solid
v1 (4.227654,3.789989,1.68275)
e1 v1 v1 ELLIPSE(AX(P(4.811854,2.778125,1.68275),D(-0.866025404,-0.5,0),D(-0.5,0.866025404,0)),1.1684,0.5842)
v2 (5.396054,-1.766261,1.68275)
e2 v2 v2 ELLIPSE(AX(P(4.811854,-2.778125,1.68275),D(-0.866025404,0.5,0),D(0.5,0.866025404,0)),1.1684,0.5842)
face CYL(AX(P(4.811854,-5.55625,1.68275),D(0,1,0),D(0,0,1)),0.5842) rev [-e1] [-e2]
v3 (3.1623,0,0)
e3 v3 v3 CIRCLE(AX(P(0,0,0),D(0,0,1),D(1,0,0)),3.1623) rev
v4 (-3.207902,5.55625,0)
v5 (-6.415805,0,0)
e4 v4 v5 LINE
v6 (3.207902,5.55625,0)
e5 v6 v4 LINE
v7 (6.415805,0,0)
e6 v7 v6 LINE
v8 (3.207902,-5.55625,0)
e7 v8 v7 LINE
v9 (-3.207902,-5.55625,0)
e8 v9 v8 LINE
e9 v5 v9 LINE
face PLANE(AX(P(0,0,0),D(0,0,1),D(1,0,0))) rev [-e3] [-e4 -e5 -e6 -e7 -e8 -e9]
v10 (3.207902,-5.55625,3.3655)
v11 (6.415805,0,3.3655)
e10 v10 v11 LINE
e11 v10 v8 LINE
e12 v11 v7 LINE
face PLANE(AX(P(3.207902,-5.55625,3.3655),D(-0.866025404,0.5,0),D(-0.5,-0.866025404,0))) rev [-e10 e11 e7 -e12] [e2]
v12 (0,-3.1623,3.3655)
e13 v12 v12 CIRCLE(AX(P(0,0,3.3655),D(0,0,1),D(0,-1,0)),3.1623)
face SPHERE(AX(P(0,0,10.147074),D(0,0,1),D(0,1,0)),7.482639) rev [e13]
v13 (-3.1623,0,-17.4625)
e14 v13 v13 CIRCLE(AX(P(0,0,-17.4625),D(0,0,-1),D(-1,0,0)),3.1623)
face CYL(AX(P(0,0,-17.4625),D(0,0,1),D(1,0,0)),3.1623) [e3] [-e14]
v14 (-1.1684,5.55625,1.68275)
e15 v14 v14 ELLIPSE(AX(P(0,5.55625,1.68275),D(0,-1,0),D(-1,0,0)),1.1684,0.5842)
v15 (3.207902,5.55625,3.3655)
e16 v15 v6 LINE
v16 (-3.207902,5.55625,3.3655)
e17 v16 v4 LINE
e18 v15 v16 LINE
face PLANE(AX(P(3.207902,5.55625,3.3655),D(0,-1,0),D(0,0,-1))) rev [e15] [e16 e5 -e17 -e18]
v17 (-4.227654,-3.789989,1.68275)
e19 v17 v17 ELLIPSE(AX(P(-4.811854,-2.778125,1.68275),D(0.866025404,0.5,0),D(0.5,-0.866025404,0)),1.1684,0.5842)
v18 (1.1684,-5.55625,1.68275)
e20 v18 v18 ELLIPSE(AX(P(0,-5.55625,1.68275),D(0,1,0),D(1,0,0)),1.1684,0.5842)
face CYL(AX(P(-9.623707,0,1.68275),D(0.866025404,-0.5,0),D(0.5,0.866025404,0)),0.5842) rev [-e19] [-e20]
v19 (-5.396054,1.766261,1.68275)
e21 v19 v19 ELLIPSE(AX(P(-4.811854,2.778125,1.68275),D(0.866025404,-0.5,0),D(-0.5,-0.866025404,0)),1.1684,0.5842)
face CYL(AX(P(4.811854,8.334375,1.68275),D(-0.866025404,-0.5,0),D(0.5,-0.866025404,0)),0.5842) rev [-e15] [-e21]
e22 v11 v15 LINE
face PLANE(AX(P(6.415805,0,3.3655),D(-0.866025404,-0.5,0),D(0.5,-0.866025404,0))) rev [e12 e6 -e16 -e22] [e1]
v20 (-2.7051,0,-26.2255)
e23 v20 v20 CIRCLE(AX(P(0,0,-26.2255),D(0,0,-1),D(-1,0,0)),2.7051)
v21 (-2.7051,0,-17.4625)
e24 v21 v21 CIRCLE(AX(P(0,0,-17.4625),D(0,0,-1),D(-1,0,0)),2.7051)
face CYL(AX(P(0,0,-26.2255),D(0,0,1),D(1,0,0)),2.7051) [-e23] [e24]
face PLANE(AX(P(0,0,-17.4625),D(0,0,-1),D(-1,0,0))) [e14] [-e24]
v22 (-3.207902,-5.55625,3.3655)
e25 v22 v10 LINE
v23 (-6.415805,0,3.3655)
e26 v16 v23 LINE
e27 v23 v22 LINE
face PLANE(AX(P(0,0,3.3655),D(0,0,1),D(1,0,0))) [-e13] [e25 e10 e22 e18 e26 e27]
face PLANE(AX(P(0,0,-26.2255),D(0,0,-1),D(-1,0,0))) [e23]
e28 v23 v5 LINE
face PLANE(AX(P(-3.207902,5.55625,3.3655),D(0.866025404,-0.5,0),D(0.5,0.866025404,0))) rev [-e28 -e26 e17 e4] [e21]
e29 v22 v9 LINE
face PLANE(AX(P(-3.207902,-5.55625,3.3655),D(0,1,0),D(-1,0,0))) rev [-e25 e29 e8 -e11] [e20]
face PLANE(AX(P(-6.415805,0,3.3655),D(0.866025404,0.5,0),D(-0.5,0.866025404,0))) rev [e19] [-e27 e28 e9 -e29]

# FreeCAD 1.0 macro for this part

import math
import FreeCAD as App
import Part
import Sketcher

V = App.Vector
Q = App.Units.Quantity


def add_polygon(sketch, points):
    """Adds a closed chain of lines whose ends are joined by coincident constraints."""
    first, n = sketch.GeometryCount, len(points)
    for a, b in zip(points, points[1:] + points[:1]):
        sketch.addGeometry(Part.LineSegment(App.Vector(*a, 0), App.Vector(*b, 0)), False)
    for i in range(n):
        sketch.addConstraint(Sketcher.Constraint("Coincident", first + i, 2, first + (i + 1) % n, 1))

doc = App.newDocument("Part")
body = doc.addObject("PartDesign::Body", "Body")

# Sketch on XY plane
sketch1 = body.newObject("Sketcher::SketchObject", "Sketch")
sketch1.AttachmentSupport = (doc.getObject("XY_Plane"), [""])
sketch1.MapMode = "FlatFace"
add_polygon(sketch1, [(3, 6), (-3, 6), (-6, 0), (-3, -6), (3, -6), (6, 0)])  # lines 0-5
sketch1.addConstraint(Sketcher.Constraint("Horizontal", 0))
sketch1.addConstraint(Sketcher.Constraint("Horizontal", 3))
sketch1.addConstraint(Sketcher.Constraint("Symmetric", 0, 2, 3, 2, -1, 1))
sketch1.addConstraint(Sketcher.Constraint("Symmetric", 1, 2, 4, 2, -1, 1))
sketch1.addConstraint(Sketcher.Constraint("PointOnObject", 1, 2, -1))
sketch1.addConstraint(Sketcher.Constraint("Parallel", 2, 5))
sketch1.addConstraint(Sketcher.Constraint("Vertical", 0, 2, 2, 2))
sketch1.addConstraint(Sketcher.Constraint("Angle", 1, Q("-120 deg")))
sketch1.addConstraint(Sketcher.Constraint("DistanceY", -1, 1, 0, 2, Q("0.21875 in")))
sketch1.addConstraint(Sketcher.Constraint("DistanceX", 0, 2, 0, 1, 6.415805))
pad1 = body.newObject("PartDesign::Pad", "Pad")
pad1.Profile = sketch1
pad1.Length = Q("0.1325 in")

# Sketch on XY plane
sketch2 = body.newObject("Sketcher::SketchObject", "Sketch001")
sketch2.AttachmentSupport = (doc.getObject("XY_Plane"), [""])
sketch2.MapMode = "FlatFace"
sketch2.addGeometry(Part.Circle(V(0, 0, 0), V(0, 0, 1), 3.2), False)
sketch2.addConstraint(Sketcher.Constraint("Coincident", 0, 3, -1, 1))
sketch2.addConstraint(Sketcher.Constraint("Diameter", 0, Q("0.249 in")))
pad2 = body.newObject("PartDesign::Pad", "Pad001")
pad2.Profile = sketch2
pad2.Length = Q("0.6875 in")
pad2.Reversed = True

# Sketch on XY plane
sketch3 = body.newObject("Sketcher::SketchObject", "Sketch002")
sketch3.AttachmentSupport = (doc.getObject("XY_Plane"), [""])
sketch3.MapMode = "FlatFace"
sketch3.AttachmentOffset = App.Placement(V(0, 0, -0.6875 * 25.4), App.Rotation())
sketch3.addGeometry(Part.Circle(V(0, 0, 0), V(0, 0, 1), 2.7), False)
sketch3.addConstraint(Sketcher.Constraint("Coincident", 0, 3, -1, 1))
sketch3.addConstraint(Sketcher.Constraint("Diameter", 0, Q("0.213 in")))
pad3 = body.newObject("PartDesign::Pad", "Pad002")
pad3.Profile = sketch3
pad3.Length = Q("0.345 in")
pad3.Reversed = True

# Sketch on YZ plane
sketch4 = body.newObject("Sketcher::SketchObject", "Sketch003")
sketch4.AttachmentSupport = (doc.getObject("YZ_Plane"), [""])
sketch4.MapMode = "FlatFace"
sketch4.addGeometry(Part.LineSegment(V(3.2, 3.4, 0), V(0, 3.4, 0)), False)
sketch4.addGeometry(Part.LineSegment(V(0, 3.4, 0), V(0, 2.7, 0)), False)
sketch4.addGeometry(Part.ArcOfCircle(Part.Circle(V(0, 10.1, 0), V(0, 0, 1), 7.5), math.radians(-90), math.radians(-65)), False)
sketch4.addConstraint(Sketcher.Constraint("Coincident", 0, 2, 1, 1))
sketch4.addConstraint(Sketcher.Constraint("Coincident", 1, 2, 2, 1))
sketch4.addConstraint(Sketcher.Constraint("Coincident", 2, 2, 0, 1))
sketch4.addConstraint(Sketcher.Constraint("Horizontal", 0))
sketch4.addConstraint(Sketcher.Constraint("Vertical", 1))
sketch4.addConstraint(Sketcher.Constraint("PointOnObject", 2, 3, -2))
sketch4.addConstraint(Sketcher.Constraint("PointOnObject", 0, 2, -2))
sketch4.addConstraint(Sketcher.Constraint("DistanceX", 0, 2, 0, 1, Q("0.1245 in")))
sketch4.addConstraint(Sketcher.Constraint("Radius", 2, 7.482639))
sketch4.addConstraint(Sketcher.Constraint("DistanceY", -1, 1, 0, 2, Q("0.1325 in")))
groove = body.newObject("PartDesign::Groove", "Groove")
groove.Profile = sketch4
groove.ReferenceAxis = (sketch4, ["V_Axis"])
groove.Angle = 360

# Sketch on XZ plane
sketch5 = body.newObject("Sketcher::SketchObject", "Sketch004")
sketch5.AttachmentSupport = (doc.getObject("XZ_Plane"), [""])
sketch5.MapMode = "FlatFace"
sketch5.addGeometry(Part.Circle(V(4.8, 1.7, 0), V(0, 0, 1), 0.6), False)
sketch5.addConstraint(Sketcher.Constraint("Diameter", 0, Q("0.046 in")))
sketch5.addConstraint(Sketcher.Constraint("DistanceY", -1, 1, 0, 3, 1.68275))
sketch5.addConstraint(Sketcher.Constraint("DistanceX", -1, 1, 0, 3, 4.811854))
pocket1 = body.newObject("PartDesign::Pocket", "Pocket")
pocket1.Profile = sketch5
pocket1.Length = 57.12935
pocket1.Midplane = True
doc.recompute()

polarpattern = body.newObject("PartDesign::PolarPattern", "PolarPattern")
polarpattern.Originals = [pocket1]
polarpattern.Axis = (doc.getObject("Z_Axis"), [""])
polarpattern.Angle = 360
polarpattern.Occurrences = 3
body.Tip = polarpattern

doc.recompute()
